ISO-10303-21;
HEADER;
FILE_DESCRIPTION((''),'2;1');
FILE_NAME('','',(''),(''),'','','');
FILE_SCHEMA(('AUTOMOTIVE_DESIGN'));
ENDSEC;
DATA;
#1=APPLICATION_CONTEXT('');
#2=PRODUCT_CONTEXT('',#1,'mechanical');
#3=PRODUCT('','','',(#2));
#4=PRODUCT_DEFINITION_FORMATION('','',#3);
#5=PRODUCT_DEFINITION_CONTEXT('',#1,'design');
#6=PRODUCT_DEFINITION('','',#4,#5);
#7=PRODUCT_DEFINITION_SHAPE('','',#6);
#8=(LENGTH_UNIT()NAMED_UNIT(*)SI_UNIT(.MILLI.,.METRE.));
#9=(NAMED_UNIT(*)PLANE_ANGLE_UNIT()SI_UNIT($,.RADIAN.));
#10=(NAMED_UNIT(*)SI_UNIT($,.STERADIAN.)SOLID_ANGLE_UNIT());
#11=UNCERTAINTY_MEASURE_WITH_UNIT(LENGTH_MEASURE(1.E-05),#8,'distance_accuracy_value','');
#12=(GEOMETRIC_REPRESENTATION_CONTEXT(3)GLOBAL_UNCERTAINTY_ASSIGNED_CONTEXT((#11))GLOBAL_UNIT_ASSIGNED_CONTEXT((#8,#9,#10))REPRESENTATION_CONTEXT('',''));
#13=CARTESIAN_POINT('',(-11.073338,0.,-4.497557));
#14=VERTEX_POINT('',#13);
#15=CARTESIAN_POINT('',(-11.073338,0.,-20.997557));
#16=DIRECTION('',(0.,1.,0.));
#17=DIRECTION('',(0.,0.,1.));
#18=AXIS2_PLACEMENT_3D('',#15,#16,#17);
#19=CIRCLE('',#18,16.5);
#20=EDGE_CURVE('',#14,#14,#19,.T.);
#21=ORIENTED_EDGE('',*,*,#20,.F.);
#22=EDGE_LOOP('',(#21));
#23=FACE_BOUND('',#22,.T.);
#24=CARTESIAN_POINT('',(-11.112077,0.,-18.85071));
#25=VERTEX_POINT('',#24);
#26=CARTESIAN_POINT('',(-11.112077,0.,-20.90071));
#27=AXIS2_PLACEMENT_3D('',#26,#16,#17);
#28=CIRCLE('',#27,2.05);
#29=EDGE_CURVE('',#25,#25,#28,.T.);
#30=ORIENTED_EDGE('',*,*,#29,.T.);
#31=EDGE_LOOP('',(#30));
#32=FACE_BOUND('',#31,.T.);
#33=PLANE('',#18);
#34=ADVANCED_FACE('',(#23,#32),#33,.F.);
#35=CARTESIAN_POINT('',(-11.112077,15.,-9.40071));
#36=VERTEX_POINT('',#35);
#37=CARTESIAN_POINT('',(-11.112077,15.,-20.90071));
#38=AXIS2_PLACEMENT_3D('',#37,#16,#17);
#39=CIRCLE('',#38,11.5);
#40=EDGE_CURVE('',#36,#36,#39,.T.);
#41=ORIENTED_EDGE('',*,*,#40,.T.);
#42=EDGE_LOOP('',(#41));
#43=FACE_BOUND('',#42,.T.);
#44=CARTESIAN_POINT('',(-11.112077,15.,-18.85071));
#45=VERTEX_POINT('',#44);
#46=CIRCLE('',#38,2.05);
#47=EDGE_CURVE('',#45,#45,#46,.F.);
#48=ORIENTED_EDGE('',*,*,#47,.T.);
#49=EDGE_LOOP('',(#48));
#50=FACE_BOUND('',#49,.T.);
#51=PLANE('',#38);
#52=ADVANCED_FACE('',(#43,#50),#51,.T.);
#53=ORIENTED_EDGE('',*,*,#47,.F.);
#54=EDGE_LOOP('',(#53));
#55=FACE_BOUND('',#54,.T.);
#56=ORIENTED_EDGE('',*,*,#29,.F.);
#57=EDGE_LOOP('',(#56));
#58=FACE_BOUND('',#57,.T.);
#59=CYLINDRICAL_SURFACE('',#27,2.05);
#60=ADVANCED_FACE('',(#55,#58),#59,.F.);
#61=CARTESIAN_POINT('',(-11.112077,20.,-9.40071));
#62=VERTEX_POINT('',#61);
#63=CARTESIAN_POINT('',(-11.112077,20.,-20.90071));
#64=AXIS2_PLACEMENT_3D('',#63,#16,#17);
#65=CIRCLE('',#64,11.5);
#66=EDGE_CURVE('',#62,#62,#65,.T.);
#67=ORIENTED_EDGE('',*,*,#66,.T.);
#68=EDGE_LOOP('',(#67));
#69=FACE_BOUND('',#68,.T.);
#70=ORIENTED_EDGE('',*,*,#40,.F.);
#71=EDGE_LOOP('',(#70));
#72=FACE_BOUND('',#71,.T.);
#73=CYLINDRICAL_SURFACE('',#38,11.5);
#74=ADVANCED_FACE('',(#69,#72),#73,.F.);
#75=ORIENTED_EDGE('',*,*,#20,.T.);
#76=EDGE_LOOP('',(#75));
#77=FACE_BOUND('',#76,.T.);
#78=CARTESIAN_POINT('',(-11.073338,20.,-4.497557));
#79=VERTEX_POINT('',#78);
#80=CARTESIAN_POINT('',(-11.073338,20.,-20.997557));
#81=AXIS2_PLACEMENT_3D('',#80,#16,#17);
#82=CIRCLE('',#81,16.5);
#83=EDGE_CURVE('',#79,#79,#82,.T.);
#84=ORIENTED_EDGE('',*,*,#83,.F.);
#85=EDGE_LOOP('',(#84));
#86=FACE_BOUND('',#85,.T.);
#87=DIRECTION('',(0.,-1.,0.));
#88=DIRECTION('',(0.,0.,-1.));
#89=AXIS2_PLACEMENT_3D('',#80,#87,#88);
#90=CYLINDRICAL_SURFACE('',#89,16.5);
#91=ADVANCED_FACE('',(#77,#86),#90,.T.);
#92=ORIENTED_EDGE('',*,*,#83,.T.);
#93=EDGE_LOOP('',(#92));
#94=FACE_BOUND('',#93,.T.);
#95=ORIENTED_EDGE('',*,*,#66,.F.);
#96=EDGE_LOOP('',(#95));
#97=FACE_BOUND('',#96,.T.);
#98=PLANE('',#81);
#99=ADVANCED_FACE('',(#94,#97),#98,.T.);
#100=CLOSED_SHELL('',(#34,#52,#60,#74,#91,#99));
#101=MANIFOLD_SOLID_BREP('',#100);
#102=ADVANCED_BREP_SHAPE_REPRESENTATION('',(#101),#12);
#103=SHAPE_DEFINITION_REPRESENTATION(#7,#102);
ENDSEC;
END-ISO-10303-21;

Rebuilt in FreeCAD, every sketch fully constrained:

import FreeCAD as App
import Part
import Sketcher
from FreeCAD import Vector
Q = App.Units.Quantity

doc = App.newDocument("Part")
body = doc.addObject("PartDesign::Body", "Body")

# Sketch on XZ plane
sketch1 = body.newObject("Sketcher::SketchObject", "Sketch")
sketch1.AttachmentSupport = (doc.getObject("XZ_Plane"), [""])
sketch1.MapMode = "FlatFace"
sketch1.addGeometry(Part.Circle(Vector(-11.073338, -20.997557, 0), Vector(0, 0, 1), 16.5), False)
sketch1.addConstraint(Sketcher.Constraint("Diameter", 0, Q("33 mm")))
sketch1.addConstraint(Sketcher.Constraint("DistanceX", 0, 3, -1, 1, Q("11.073338 mm")))
sketch1.addConstraint(Sketcher.Constraint("DistanceY", 0, 3, -1, 1, Q("20.997557 mm")))
pad1 = body.newObject("PartDesign::Pad", "Pad")
pad1.Profile = sketch1
pad1.Length = 20
pad1.Reversed = True

# Sketch on XZ plane
sketch2 = body.newObject("Sketcher::SketchObject", "Sketch001")
sketch2.AttachmentSupport = (doc.getObject("XZ_Plane"), [""])
sketch2.MapMode = "FlatFace"
sketch2.AttachmentOffset = App.Placement(Vector(0, 0, -20), App.Rotation())
sketch2.addGeometry(Part.Circle(Vector(-11.112077, -20.90071, 0), Vector(0, 0, 1), 2.05), False)
sketch2.addConstraint(Sketcher.Constraint("Diameter", 0, Q("4.1 mm")))
sketch2.addConstraint(Sketcher.Constraint("DistanceY", 0, 3, -1, 1, Q("20.90071 mm")))
sketch2.addConstraint(Sketcher.Constraint("DistanceX", 0, 3, -1, 1, Q("11.112077 mm")))
pocket1 = body.newObject("PartDesign::Pocket", "Pocket")
pocket1.Profile = sketch2
pocket1.Type = "ThroughAll"
pocket1.Reversed = True

# Sketch on XZ plane
sketch3 = body.newObject("Sketcher::SketchObject", "Sketch002")
sketch3.AttachmentSupport = (doc.getObject("XZ_Plane"), [""])
sketch3.MapMode = "FlatFace"
sketch3.AttachmentOffset = App.Placement(Vector(0, 0, -20), App.Rotation())
sketch3.addGeometry(Part.Circle(Vector(-11.112077, -20.90071, 0), Vector(0, 0, 1), 11.5), False)
sketch3.addConstraint(Sketcher.Constraint("Diameter", 0, Q("23 mm")))
sketch3.addConstraint(Sketcher.Constraint("DistanceY", 0, 3, -1, 1, Q("20.90071 mm")))
sketch3.addConstraint(Sketcher.Constraint("DistanceX", 0, 3, -1, 1, Q("11.112077 mm")))
pocket2 = body.newObject("PartDesign::Pocket", "Pocket001")
pocket2.Profile = sketch3
pocket2.Length = 5
pocket2.Reversed = True

doc.recompute()
